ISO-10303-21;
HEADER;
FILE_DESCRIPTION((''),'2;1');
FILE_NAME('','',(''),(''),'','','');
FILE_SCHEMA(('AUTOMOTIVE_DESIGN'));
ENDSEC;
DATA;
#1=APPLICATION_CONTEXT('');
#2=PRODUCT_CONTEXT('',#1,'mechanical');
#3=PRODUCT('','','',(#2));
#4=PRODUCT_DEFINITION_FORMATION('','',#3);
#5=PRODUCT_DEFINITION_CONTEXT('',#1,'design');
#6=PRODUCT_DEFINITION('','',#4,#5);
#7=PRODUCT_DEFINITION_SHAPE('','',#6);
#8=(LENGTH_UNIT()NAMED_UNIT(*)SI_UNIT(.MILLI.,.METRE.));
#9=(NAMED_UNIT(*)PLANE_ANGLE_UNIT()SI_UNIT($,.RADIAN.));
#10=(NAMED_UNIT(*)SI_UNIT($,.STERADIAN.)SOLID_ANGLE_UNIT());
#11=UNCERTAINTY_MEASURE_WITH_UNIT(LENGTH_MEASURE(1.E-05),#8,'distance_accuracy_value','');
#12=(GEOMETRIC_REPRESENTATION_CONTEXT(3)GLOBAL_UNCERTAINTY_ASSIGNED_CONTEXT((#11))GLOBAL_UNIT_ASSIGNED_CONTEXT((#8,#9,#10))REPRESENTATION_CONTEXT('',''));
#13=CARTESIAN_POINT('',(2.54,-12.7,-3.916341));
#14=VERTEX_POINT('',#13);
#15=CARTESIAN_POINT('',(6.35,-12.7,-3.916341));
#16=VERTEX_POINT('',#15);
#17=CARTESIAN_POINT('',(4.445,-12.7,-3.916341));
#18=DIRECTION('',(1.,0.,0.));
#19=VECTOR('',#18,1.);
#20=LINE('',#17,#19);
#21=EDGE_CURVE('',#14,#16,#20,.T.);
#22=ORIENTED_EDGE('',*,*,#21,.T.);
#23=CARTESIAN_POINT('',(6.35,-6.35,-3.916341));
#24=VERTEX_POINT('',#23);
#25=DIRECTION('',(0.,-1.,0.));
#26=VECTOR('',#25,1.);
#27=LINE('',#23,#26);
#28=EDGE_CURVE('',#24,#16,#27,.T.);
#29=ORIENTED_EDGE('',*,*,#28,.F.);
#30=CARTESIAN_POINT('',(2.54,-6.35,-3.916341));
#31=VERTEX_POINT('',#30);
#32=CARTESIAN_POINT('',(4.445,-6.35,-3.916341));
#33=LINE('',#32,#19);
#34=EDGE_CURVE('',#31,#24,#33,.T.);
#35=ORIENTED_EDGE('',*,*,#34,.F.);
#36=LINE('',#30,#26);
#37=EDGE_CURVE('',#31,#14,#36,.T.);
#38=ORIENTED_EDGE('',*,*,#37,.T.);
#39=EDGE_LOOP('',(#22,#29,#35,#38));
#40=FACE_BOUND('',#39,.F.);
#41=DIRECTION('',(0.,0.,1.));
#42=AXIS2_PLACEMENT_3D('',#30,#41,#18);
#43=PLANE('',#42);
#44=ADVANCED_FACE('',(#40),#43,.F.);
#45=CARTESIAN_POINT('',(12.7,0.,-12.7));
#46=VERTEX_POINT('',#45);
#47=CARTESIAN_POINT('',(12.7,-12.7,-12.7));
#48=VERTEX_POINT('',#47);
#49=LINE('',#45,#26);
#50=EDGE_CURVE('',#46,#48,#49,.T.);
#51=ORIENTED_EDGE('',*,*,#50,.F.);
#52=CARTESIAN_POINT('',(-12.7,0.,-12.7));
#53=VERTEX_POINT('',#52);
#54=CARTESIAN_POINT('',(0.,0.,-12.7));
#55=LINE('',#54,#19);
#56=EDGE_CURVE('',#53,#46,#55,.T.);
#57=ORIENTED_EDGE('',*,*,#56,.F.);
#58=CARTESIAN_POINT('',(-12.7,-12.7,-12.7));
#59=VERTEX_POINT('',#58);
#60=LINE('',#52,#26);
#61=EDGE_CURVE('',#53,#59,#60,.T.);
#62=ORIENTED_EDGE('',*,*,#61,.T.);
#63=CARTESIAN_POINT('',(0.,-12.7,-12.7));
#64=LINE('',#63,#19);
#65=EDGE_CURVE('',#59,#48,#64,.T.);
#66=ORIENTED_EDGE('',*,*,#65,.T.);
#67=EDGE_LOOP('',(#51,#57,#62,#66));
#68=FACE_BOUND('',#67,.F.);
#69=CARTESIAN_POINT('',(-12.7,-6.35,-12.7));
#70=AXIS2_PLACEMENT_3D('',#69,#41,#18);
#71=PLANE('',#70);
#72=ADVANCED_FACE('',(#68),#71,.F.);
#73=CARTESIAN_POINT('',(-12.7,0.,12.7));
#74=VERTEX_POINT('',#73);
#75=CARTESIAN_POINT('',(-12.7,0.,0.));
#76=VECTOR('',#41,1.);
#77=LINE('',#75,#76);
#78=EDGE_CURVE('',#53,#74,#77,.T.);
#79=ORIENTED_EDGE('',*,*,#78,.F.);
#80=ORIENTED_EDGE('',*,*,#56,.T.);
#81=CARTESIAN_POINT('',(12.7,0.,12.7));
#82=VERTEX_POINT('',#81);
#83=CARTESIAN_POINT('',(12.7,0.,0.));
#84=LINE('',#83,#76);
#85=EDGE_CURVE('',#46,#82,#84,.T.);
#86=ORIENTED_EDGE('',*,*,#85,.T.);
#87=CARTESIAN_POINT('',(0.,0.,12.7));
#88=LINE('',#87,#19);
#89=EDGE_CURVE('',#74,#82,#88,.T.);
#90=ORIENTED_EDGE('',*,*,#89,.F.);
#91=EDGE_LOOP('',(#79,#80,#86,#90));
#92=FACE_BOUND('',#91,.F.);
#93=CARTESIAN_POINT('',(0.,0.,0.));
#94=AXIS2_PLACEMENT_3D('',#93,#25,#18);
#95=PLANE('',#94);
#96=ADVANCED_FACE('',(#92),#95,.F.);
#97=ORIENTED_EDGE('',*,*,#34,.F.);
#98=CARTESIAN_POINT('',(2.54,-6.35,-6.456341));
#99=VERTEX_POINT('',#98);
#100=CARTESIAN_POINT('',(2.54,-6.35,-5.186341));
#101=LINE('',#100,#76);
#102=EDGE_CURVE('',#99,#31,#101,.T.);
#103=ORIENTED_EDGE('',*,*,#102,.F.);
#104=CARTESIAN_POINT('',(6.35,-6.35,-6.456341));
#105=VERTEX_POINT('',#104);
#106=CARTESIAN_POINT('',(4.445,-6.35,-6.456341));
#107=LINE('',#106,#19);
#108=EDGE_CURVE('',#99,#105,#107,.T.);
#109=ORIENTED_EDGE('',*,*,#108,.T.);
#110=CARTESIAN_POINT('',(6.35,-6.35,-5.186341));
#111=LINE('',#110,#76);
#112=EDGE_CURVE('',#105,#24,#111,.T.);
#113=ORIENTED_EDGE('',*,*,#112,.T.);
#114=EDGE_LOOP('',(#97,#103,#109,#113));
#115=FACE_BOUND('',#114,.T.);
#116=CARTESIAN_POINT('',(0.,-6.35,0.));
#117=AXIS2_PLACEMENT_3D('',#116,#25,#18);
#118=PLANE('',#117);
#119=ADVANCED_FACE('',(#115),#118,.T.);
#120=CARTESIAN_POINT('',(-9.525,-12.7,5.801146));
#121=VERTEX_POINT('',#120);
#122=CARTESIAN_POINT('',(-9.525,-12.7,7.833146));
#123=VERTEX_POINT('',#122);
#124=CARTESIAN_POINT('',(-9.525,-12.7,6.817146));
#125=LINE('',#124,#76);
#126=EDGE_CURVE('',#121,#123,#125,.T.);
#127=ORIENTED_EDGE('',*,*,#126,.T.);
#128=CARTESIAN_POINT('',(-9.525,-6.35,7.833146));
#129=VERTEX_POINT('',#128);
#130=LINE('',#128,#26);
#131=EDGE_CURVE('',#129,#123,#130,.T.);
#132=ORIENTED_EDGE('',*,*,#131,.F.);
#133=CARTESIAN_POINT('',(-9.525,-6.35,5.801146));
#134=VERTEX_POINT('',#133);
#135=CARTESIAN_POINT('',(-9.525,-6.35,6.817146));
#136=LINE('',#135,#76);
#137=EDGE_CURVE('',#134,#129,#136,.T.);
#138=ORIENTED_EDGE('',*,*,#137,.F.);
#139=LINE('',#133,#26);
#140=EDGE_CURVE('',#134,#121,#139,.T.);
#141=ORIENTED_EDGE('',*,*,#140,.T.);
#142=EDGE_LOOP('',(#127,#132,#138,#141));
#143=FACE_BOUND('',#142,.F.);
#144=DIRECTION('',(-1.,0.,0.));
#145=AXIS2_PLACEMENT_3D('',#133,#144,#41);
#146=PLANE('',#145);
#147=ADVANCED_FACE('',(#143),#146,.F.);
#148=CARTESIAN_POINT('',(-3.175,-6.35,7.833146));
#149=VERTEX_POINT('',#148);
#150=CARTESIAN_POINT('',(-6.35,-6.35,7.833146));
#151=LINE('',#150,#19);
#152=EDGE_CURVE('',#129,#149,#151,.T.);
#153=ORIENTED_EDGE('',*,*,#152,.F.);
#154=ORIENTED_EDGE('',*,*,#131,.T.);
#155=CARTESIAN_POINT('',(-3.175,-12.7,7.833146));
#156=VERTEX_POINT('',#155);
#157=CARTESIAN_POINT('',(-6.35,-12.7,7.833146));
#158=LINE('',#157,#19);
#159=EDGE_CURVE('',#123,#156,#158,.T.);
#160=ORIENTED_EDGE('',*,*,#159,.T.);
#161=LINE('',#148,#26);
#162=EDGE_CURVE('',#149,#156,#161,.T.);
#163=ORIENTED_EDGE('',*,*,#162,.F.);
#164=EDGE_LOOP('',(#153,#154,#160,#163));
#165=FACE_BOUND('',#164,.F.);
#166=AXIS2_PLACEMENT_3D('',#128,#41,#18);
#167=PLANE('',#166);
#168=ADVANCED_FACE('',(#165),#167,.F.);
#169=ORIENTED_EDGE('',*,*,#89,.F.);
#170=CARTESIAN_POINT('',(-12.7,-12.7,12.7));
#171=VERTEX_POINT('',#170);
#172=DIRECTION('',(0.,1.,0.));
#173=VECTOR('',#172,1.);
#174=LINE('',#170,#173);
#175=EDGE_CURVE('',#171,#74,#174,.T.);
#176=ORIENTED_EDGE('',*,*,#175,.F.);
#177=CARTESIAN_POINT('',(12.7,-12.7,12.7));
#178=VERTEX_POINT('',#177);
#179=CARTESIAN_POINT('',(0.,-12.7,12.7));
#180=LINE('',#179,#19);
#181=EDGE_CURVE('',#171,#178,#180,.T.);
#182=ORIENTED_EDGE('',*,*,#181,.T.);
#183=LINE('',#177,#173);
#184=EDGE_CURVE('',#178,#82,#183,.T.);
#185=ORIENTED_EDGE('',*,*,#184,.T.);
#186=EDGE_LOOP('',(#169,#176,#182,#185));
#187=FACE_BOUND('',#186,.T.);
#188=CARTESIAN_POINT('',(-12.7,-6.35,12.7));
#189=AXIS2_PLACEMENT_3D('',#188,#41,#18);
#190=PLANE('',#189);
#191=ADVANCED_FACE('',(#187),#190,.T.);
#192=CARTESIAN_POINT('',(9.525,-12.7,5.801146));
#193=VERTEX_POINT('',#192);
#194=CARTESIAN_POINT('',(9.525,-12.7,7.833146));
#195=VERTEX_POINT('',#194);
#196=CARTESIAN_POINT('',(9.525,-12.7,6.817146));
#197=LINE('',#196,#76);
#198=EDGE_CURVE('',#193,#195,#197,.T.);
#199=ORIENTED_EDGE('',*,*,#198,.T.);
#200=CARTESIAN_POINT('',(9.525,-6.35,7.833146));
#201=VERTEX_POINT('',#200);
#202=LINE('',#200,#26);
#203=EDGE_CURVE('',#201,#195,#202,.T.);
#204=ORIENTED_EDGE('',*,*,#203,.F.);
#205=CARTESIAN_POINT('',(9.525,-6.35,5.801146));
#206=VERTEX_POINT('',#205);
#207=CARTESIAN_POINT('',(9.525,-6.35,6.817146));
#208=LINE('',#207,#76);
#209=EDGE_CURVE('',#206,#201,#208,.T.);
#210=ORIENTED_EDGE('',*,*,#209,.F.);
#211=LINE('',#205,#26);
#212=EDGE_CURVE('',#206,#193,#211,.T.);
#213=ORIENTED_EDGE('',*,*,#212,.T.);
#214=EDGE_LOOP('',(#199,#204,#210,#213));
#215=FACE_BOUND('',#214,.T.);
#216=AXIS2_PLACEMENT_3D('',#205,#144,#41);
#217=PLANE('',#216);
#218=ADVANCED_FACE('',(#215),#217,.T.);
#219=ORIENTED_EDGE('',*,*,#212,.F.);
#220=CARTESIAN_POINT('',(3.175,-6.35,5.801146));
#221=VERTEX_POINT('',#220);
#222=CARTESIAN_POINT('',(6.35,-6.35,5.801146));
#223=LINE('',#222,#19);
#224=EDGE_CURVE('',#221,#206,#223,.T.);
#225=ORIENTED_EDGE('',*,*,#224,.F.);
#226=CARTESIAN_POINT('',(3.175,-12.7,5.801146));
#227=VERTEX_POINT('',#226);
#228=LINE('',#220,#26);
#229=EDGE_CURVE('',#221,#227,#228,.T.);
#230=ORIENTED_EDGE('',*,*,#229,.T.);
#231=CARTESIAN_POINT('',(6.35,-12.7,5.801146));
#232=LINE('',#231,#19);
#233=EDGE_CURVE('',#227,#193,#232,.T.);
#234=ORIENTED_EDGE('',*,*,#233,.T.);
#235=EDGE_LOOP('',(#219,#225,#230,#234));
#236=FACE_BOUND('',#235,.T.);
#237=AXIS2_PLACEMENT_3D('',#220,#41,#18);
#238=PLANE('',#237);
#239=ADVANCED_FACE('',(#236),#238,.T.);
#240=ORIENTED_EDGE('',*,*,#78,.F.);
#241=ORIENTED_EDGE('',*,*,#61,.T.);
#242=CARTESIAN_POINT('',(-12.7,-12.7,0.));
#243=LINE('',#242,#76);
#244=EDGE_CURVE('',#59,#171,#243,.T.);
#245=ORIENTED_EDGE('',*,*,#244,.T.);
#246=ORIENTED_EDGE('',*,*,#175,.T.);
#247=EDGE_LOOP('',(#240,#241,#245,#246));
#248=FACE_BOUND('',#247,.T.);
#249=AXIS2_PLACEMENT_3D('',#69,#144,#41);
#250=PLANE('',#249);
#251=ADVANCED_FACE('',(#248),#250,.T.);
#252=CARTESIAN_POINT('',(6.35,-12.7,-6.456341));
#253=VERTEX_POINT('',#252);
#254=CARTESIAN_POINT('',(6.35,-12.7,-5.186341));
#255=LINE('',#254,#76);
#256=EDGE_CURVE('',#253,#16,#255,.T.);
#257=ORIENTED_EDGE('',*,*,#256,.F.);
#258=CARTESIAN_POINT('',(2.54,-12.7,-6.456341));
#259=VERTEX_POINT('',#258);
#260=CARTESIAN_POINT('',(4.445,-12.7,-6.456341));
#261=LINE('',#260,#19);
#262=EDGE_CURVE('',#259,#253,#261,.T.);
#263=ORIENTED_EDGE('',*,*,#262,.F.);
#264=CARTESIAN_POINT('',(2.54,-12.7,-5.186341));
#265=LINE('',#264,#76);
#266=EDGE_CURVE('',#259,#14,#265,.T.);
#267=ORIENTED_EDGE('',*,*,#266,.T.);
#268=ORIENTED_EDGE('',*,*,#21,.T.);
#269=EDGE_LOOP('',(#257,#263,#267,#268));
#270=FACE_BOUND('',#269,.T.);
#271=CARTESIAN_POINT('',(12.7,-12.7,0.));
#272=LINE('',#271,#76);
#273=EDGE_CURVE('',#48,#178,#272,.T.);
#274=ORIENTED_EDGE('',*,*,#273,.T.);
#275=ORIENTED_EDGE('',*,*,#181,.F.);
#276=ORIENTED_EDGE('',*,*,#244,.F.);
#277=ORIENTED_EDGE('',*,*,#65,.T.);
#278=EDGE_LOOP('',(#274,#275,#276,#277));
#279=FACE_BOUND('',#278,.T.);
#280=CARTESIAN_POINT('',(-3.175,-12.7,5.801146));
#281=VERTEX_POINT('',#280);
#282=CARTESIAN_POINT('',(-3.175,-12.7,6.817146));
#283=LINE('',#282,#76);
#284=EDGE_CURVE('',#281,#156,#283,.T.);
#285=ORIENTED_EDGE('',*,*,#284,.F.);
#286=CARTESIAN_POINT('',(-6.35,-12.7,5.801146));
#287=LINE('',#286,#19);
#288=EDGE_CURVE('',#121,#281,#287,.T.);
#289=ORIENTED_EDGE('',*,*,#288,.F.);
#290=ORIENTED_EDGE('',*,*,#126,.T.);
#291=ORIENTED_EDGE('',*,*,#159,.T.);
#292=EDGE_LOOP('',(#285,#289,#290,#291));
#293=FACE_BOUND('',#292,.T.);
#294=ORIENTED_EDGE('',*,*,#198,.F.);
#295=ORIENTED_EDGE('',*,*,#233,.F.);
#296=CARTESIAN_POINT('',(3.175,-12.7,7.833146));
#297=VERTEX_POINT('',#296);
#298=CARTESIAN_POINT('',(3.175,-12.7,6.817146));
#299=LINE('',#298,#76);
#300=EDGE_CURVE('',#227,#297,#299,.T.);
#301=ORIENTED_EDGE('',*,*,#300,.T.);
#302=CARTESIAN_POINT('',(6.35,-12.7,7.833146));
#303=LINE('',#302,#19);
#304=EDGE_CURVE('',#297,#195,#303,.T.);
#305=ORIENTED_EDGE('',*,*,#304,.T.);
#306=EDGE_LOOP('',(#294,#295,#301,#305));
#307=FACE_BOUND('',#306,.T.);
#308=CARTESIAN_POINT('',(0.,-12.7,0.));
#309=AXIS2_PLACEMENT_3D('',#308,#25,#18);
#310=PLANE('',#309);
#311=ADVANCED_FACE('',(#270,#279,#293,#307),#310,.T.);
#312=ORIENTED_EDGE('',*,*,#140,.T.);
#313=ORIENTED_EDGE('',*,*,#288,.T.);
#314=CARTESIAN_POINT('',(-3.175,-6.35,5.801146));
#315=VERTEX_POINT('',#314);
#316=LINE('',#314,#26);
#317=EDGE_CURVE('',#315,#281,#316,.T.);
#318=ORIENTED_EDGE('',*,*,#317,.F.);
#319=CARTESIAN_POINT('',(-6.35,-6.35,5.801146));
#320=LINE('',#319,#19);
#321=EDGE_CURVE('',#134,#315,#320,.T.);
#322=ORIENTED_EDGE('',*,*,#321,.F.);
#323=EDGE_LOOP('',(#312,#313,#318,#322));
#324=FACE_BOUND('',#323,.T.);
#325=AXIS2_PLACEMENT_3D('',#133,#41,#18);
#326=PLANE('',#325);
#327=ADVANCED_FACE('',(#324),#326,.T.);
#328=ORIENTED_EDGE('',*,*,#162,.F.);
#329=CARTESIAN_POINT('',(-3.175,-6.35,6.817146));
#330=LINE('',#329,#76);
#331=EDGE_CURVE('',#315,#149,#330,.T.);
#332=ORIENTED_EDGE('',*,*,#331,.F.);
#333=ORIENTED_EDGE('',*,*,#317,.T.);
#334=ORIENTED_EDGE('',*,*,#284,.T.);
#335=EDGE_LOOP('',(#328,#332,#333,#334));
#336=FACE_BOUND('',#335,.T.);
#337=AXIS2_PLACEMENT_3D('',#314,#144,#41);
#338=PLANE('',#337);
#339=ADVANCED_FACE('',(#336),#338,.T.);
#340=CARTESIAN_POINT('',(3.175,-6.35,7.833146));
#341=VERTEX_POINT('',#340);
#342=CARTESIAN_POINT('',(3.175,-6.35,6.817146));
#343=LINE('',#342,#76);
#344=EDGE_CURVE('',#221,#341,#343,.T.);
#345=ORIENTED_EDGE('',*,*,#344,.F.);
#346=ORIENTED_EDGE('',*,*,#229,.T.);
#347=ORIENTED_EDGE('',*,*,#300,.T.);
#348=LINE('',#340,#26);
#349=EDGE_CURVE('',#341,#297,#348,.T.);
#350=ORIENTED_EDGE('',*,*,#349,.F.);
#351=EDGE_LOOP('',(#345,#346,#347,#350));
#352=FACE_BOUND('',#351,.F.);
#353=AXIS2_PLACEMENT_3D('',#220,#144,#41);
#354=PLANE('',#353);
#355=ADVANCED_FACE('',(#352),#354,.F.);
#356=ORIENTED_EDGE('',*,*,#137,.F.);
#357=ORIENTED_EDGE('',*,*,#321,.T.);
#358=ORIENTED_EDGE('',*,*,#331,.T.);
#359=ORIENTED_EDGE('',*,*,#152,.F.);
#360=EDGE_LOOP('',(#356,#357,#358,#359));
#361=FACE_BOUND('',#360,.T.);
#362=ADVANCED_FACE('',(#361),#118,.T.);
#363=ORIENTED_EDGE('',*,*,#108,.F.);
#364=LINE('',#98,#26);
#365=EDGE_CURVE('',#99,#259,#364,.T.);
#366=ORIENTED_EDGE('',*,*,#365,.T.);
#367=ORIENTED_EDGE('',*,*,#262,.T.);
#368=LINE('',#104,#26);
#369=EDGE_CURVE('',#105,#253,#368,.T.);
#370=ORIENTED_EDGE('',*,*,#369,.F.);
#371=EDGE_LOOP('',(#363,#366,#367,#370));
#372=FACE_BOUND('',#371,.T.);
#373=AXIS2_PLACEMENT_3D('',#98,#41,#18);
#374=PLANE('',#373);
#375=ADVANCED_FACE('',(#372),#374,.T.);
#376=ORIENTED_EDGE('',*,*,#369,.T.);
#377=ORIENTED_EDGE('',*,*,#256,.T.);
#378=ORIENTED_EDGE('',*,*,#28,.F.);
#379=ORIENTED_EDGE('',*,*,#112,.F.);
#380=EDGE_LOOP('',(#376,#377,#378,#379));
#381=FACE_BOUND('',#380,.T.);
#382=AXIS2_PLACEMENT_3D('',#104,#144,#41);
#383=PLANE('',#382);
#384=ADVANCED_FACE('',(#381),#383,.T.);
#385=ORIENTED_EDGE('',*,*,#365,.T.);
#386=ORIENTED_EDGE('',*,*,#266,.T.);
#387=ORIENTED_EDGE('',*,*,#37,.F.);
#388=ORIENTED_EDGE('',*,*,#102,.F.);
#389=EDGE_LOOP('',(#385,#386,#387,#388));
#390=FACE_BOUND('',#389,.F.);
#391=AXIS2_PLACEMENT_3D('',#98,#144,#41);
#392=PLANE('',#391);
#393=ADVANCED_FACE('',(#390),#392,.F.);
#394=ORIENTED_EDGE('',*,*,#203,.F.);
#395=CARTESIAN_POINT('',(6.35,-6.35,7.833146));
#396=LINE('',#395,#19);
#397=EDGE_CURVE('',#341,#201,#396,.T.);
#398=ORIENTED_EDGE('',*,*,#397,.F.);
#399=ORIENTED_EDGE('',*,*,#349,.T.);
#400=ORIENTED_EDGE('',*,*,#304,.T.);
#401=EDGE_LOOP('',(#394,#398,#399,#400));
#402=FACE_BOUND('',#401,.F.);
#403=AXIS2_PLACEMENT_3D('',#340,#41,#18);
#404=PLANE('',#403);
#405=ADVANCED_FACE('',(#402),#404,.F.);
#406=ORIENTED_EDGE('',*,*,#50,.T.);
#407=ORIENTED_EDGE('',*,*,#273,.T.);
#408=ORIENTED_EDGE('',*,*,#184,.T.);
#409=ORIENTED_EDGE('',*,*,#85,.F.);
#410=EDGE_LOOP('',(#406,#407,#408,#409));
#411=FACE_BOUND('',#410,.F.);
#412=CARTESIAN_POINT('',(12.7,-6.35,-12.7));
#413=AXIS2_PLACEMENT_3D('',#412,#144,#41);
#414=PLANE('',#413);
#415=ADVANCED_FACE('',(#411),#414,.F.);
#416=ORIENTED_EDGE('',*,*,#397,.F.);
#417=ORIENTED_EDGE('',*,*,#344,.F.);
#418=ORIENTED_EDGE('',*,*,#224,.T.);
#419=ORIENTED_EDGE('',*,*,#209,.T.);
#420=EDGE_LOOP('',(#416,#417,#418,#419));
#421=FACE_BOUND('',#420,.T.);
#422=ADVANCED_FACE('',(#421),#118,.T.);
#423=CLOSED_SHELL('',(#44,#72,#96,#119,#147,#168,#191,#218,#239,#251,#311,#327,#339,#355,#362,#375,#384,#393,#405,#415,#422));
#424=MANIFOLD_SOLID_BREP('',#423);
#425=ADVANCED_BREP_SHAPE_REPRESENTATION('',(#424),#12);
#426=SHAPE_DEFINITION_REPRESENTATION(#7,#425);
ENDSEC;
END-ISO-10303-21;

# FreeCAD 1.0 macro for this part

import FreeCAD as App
import Part
import Sketcher
from FreeCAD import Vector
Q = App.Units.Quantity

doc = App.newDocument("Part")
body = doc.addObject("PartDesign::Body", "Body")

# Sketch on XZ plane
sketch1 = body.newObject("Sketcher::SketchObject", "Sketch")
sketch1.AttachmentSupport = (doc.getObject("XZ_Plane"), [""])
sketch1.MapMode = "FlatFace"
sketch1.addGeometry(Part.LineSegment(Vector(-13, 13, 0), Vector(-13, -13, 0)), False)
sketch1.addGeometry(Part.LineSegment(Vector(-13, -13, 0), Vector(13, -13, 0)), False)
sketch1.addGeometry(Part.LineSegment(Vector(13, -13, 0), Vector(13, 13, 0)), False)
sketch1.addGeometry(Part.LineSegment(Vector(13, 13, 0), Vector(-13, 13, 0)), False)
sketch1.addConstraint(Sketcher.Constraint("Coincident", 0, 2, 1, 1))
sketch1.addConstraint(Sketcher.Constraint("Coincident", 1, 2, 2, 1))
sketch1.addConstraint(Sketcher.Constraint("Coincident", 2, 2, 3, 1))
sketch1.addConstraint(Sketcher.Constraint("Coincident", 3, 2, 0, 1))
sketch1.addConstraint(Sketcher.Constraint("Vertical", 0))
sketch1.addConstraint(Sketcher.Constraint("Horizontal", 1))
sketch1.addConstraint(Sketcher.Constraint("Vertical", 2))
sketch1.addConstraint(Sketcher.Constraint("Horizontal", 3))
sketch1.addConstraint(Sketcher.Constraint("Symmetric", 0, 2, 2, 2, -1, 1))
sketch1.addConstraint(Sketcher.Constraint("Equal", 3, 0))
sketch1.addConstraint(Sketcher.Constraint("DistanceX", 1, 1, 1, 2, Q("1 in")))
pad1 = body.newObject("PartDesign::Pad", "Pad")
pad1.Profile = sketch1
pad1.Length = Q("0.25 in")

# Sketch on XZ plane
sketch2 = body.newObject("Sketcher::SketchObject", "Sketch001")
sketch2.AttachmentSupport = (doc.getObject("XZ_Plane"), [""])
sketch2.MapMode = "FlatFace"
sketch2.AttachmentOffset = App.Placement(Vector(0, 0, 0.25 * 25.4), App.Rotation())
sketch2.addGeometry(Part.LineSegment(Vector(-12.7, 12.7, 0), Vector(-12.7, -12.7, 0)), False)
sketch2.addGeometry(Part.LineSegment(Vector(-12.7, -12.7, 0), Vector(12.7, -12.7, 0)), False)
sketch2.addGeometry(Part.LineSegment(Vector(12.7, -12.7, 0), Vector(12.7, 12.7, 0)), False)
sketch2.addGeometry(Part.LineSegment(Vector(12.7, 12.7, 0), Vector(-12.7, 12.7, 0)), False)
sketch2.addGeometry(Part.LineSegment(Vector(6.3, -6.5, 0), Vector(2.5, -6.5, 0)), False)
sketch2.addGeometry(Part.LineSegment(Vector(2.5, -6.5, 0), Vector(2.5, -3.9, 0)), False)
sketch2.addGeometry(Part.LineSegment(Vector(2.5, -3.9, 0), Vector(6.3, -3.9, 0)), False)
sketch2.addGeometry(Part.LineSegment(Vector(6.3, -3.9, 0), Vector(6.3, -6.5, 0)), False)
sketch2.addGeometry(Part.LineSegment(Vector(-3.2, 5.8, 0), Vector(-9.5, 5.8, 0)), False)
sketch2.addGeometry(Part.LineSegment(Vector(-9.5, 5.8, 0), Vector(-9.5, 7.8, 0)), False)
sketch2.addGeometry(Part.LineSegment(Vector(-9.5, 7.8, 0), Vector(-3.2, 7.8, 0)), False)
sketch2.addGeometry(Part.LineSegment(Vector(-3.2, 7.8, 0), Vector(-3.2, 5.8, 0)), False)
sketch2.addGeometry(Part.LineSegment(Vector(9.5, 5.8, 0), Vector(3.2, 5.8, 0)), False)
sketch2.addGeometry(Part.LineSegment(Vector(3.2, 5.8, 0), Vector(3.2, 7.8, 0)), False)
sketch2.addGeometry(Part.LineSegment(Vector(3.2, 7.8, 0), Vector(9.5, 7.8, 0)), False)
sketch2.addGeometry(Part.LineSegment(Vector(9.5, 7.8, 0), Vector(9.5, 5.8, 0)), False)
sketch2.addConstraint(Sketcher.Constraint("Coincident", 0, 2, 1, 1))
sketch2.addConstraint(Sketcher.Constraint("Coincident", 1, 2, 2, 1))
sketch2.addConstraint(Sketcher.Constraint("Coincident", 2, 2, 3, 1))
sketch2.addConstraint(Sketcher.Constraint("Coincident", 3, 2, 0, 1))
sketch2.addConstraint(Sketcher.Constraint("Coincident", 4, 2, 5, 1))
sketch2.addConstraint(Sketcher.Constraint("Coincident", 5, 2, 6, 1))
sketch2.addConstraint(Sketcher.Constraint("Coincident", 6, 2, 7, 1))
sketch2.addConstraint(Sketcher.Constraint("Coincident", 7, 2, 4, 1))
sketch2.addConstraint(Sketcher.Constraint("Coincident", 8, 2, 9, 1))
sketch2.addConstraint(Sketcher.Constraint("Coincident", 9, 2, 10, 1))
sketch2.addConstraint(Sketcher.Constraint("Coincident", 10, 2, 11, 1))
sketch2.addConstraint(Sketcher.Constraint("Coincident", 11, 2, 8, 1))
sketch2.addConstraint(Sketcher.Constraint("Coincident", 12, 2, 13, 1))
sketch2.addConstraint(Sketcher.Constraint("Coincident", 13, 2, 14, 1))
sketch2.addConstraint(Sketcher.Constraint("Coincident", 14, 2, 15, 1))
sketch2.addConstraint(Sketcher.Constraint("Coincident", 15, 2, 12, 1))
sketch2.addConstraint(Sketcher.Constraint("Vertical", 0))
sketch2.addConstraint(Sketcher.Constraint("Horizontal", 1))
sketch2.addConstraint(Sketcher.Constraint("Vertical", 2))
sketch2.addConstraint(Sketcher.Constraint("Horizontal", 3))
sketch2.addConstraint(Sketcher.Constraint("Horizontal", 4))
sketch2.addConstraint(Sketcher.Constraint("Vertical", 5))
sketch2.addConstraint(Sketcher.Constraint("Horizontal", 6))
sketch2.addConstraint(Sketcher.Constraint("Vertical", 7))
sketch2.addConstraint(Sketcher.Constraint("Horizontal", 8))
sketch2.addConstraint(Sketcher.Constraint("Vertical", 9))
sketch2.addConstraint(Sketcher.Constraint("Horizontal", 10))
sketch2.addConstraint(Sketcher.Constraint("Vertical", 11))
sketch2.addConstraint(Sketcher.Constraint("Horizontal", 12))
sketch2.addConstraint(Sketcher.Constraint("Vertical", 13))
sketch2.addConstraint(Sketcher.Constraint("Horizontal", 14))
sketch2.addConstraint(Sketcher.Constraint("Vertical", 15))
sketch2.addConstraint(Sketcher.Constraint("Symmetric", 0, 2, 2, 2, -1, 1))
sketch2.addConstraint(Sketcher.Constraint("Symmetric", 11, 2, 12, 2, -2))
sketch2.addConstraint(Sketcher.Constraint("Symmetric", 9, 2, 14, 2, -2))
sketch2.addConstraint(Sketcher.Constraint("Equal", 3, 0))
sketch2.addConstraint(Sketcher.Constraint("DistanceX", 1, 1, 1, 2, Q("1 in")))
sketch2.addConstraint(Sketcher.Constraint("DistanceY", 5, 1, 5, 2, Q("0.1 in")))
sketch2.addConstraint(Sketcher.Constraint("DistanceX", 4, 2, 4, 1, Q("0.15 in")))
sketch2.addConstraint(Sketcher.Constraint("DistanceX", 8, 2, 8, 1, Q("0.25 in")))
sketch2.addConstraint(Sketcher.Constraint("DistanceY", 9, 1, 9, 2, Q("0.08 in")))
sketch2.addConstraint(Sketcher.Constraint("DistanceX", -1, 1, 4, 2, Q("0.1 in")))
sketch2.addConstraint(Sketcher.Constraint("DistanceX", 10, 2, 14, 2, Q("0.5 in")))
sketch2.addConstraint(Sketcher.Constraint("DistanceY", 4, 2, -1, 1, 6.456341))
sketch2.addConstraint(Sketcher.Constraint("DistanceY", -1, 1, 8, 2, 5.801146))
pad2 = body.newObject("PartDesign::Pad", "Pad001")
pad2.Profile = sketch2
pad2.Length = Q("0.25 in")

doc.recompute()
